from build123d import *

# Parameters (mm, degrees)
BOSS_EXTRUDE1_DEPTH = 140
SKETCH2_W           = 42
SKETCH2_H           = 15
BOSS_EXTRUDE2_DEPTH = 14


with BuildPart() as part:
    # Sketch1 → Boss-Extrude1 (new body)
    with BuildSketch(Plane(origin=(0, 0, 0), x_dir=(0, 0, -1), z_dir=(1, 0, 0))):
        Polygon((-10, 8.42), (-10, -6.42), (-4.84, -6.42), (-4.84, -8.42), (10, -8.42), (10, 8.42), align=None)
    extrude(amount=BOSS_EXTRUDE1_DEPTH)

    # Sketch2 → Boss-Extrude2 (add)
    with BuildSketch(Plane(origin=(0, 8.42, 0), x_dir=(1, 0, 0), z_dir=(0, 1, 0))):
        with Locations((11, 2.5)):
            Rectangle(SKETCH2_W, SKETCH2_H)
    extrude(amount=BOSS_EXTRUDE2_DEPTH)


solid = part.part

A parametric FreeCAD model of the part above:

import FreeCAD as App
import Part
import Sketcher
from FreeCAD import Vector
Q = App.Units.Quantity

doc = App.newDocument("Part")
body = doc.addObject("PartDesign::Body", "Body")

# Sketch on YZ plane
sketch1 = body.newObject("Sketcher::SketchObject", "Sketch")
sketch1.AttachmentSupport = (doc.getObject("YZ_Plane"), [""])
sketch1.MapMode = "FlatFace"
sketch1.addGeometry([
    Part.LineSegment(Vector(8.4, 10, 0), Vector(-6.4, 10, 0)),  # 0
    Part.LineSegment(Vector(-6.4, 10, 0), Vector(-6.4, 4.8, 0)),  # 1
    Part.LineSegment(Vector(-6.4, 4.8, 0), Vector(-8.4, 4.8, 0)),  # 2
    Part.LineSegment(Vector(-8.4, 4.8, 0), Vector(-8.4, -10, 0)),  # 3
    Part.LineSegment(Vector(-8.4, -10, 0), Vector(8.4, -10, 0)),  # 4
    Part.LineSegment(Vector(8.4, -10, 0), Vector(8.4, 10, 0)),  # 5
], False)
sketch1.addConstraint([
    Sketcher.Constraint("Coincident", 0, 2, 1, 1),
    Sketcher.Constraint("Coincident", 1, 2, 2, 1),
    Sketcher.Constraint("Coincident", 2, 2, 3, 1),
    Sketcher.Constraint("Coincident", 3, 2, 4, 1),
    Sketcher.Constraint("Coincident", 4, 2, 5, 1),
    Sketcher.Constraint("Coincident", 5, 2, 0, 1),
    Sketcher.Constraint("Horizontal", 0),
    Sketcher.Constraint("Vertical", 1),
    Sketcher.Constraint("Horizontal", 2),
    Sketcher.Constraint("Vertical", 3),
    Sketcher.Constraint("Horizontal", 4),
    Sketcher.Constraint("Vertical", 5),
    Sketcher.Constraint("Symmetric", 3, 2, 5, 2, -1, 1),
    Sketcher.Constraint("Equal", 0, 3),
    Sketcher.Constraint("DistanceX", 2, 2, 2, 1, Q("2 mm")),
    Sketcher.Constraint("DistanceY", 5, 1, 5, 2, Q("20 mm")),
    Sketcher.Constraint("DistanceX", 0, 2, 0, 1, Q("14.84 mm")),
])
pad1 = body.newObject("PartDesign::Pad", "Pad")
pad1.Profile = sketch1
pad1.Length = 140

# Sketch on XZ plane
sketch2 = body.newObject("Sketcher::SketchObject", "Sketch001")
sketch2.AttachmentSupport = (doc.getObject("XZ_Plane"), [""])
sketch2.MapMode = "FlatFace"
sketch2.AttachmentOffset = App.Placement(Vector(0, 0, -8.42), App.Rotation())
sketch2.addGeometry([
    Part.LineSegment(Vector(-10, -10, 0), Vector(-10, 5, 0)),
    Part.LineSegment(Vector(-10, 5, 0), Vector(32, 5, 0)),
    Part.LineSegment(Vector(32, 5, 0), Vector(32, -10, 0)),
    Part.LineSegment(Vector(32, -10, 0), Vector(-10, -10, 0)),
], False)
sketch2.addConstraint([
    Sketcher.Constraint("Coincident", 0, 2, 1, 1),
    Sketcher.Constraint("Coincident", 1, 2, 2, 1),
    Sketcher.Constraint("Coincident", 2, 2, 3, 1),
    Sketcher.Constraint("Coincident", 3, 2, 0, 1),
    Sketcher.Constraint("Vertical", 0),
    Sketcher.Constraint("Horizontal", 1),
    Sketcher.Constraint("Vertical", 2),
    Sketcher.Constraint("Horizontal", 3),
    Sketcher.Constraint("DistanceX", 1, 1, 1, 2, Q("42 mm")),
    Sketcher.Constraint("DistanceY", 0, 1, 0, 2, Q("15 mm")),
    Sketcher.Constraint("DistanceX", 0, 2, -1, 1, Q("10 mm")),
    Sketcher.Constraint("DistanceY", -1, 1, 0, 2, Q("5 mm")),
])
pad2 = body.newObject("PartDesign::Pad", "Pad001")
pad2.Profile = sketch2
pad2.Length = 14
pad2.Reversed = True

doc.recompute()
